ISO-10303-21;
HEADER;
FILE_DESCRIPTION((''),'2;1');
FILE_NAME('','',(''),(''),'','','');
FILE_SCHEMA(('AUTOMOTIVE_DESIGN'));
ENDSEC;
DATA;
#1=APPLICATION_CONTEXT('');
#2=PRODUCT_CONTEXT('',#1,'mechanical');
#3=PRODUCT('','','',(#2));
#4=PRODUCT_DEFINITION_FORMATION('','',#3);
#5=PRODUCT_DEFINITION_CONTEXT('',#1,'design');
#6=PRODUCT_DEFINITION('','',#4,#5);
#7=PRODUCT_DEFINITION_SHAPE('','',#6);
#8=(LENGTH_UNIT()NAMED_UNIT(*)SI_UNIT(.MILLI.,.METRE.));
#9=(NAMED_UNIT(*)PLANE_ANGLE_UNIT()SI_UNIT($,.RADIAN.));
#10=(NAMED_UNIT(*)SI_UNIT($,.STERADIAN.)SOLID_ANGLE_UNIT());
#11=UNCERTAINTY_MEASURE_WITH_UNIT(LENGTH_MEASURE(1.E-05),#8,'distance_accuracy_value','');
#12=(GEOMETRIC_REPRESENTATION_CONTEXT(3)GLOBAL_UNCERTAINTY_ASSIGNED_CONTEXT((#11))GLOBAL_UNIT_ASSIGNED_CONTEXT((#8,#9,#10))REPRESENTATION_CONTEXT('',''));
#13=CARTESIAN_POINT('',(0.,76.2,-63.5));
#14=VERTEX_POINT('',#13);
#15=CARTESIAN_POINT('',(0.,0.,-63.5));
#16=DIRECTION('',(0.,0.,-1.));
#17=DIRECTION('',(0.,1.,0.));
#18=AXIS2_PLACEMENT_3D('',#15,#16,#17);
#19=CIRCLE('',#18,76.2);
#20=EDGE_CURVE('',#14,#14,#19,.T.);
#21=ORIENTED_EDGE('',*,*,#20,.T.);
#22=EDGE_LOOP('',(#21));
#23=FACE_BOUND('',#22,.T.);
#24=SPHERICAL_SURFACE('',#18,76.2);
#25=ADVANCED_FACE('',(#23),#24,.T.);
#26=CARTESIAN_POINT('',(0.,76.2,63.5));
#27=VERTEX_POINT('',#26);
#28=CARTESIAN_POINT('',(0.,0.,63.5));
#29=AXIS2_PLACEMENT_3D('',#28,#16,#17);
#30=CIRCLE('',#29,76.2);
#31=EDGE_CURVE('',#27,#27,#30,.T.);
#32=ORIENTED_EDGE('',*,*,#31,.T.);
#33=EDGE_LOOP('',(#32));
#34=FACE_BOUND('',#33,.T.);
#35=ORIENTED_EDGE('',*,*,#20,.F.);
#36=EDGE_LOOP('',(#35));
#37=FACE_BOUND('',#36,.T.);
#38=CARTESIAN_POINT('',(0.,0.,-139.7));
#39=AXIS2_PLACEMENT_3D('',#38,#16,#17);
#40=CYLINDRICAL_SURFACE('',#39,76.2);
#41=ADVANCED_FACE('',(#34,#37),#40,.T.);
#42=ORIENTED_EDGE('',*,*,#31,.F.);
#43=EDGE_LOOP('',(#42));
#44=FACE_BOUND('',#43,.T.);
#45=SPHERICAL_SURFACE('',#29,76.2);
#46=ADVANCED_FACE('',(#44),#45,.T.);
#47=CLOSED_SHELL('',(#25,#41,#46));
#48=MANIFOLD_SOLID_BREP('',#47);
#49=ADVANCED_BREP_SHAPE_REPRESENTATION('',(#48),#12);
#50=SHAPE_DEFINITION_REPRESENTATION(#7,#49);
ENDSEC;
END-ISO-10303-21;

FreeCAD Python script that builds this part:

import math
import FreeCAD as App
import Part
import Sketcher

V = App.Vector
Q = App.Units.Quantity

doc = App.newDocument("Part")
body = doc.addObject("PartDesign::Body", "Body")

# Sketch on YZ plane
sketch1 = body.newObject("Sketcher::SketchObject", "Sketch")
sketch1.AttachmentSupport = (doc.getObject("YZ_Plane"), [""])
sketch1.MapMode = "FlatFace"
sketch1.addGeometry(Part.LineSegment(V(76, -64, 0), V(76, 64, 0)), False)
sketch1.addGeometry(Part.ArcOfCircle(Part.Circle(V(0, 63, 0), V(0, 0, 1), 76), math.radians(0), math.radians(90)), False)
sketch1.addGeometry(Part.LineSegment(V(0, 140, 0), V(0, -140, 0)), False)
sketch1.addGeometry(Part.ArcOfCircle(Part.Circle(V(0, -63, 0), V(0, 0, 1), 76), math.radians(-90), math.radians(0)), False)
sketch1.addConstraint(Sketcher.Constraint("Tangent", 0, 2, 1, 1))
sketch1.addConstraint(Sketcher.Constraint("Coincident", 1, 2, 2, 1))
sketch1.addConstraint(Sketcher.Constraint("Coincident", 2, 2, 3, 1))
sketch1.addConstraint(Sketcher.Constraint("Tangent", 3, 2, 0, 1))
sketch1.addConstraint(Sketcher.Constraint("Vertical", 0))
sketch1.addConstraint(Sketcher.Constraint("Vertical", 2))
sketch1.addConstraint(Sketcher.Constraint("Equal", 1, 3))
sketch1.addConstraint(Sketcher.Constraint("Symmetric", 1, 3, 3, 3, -1, 1))
sketch1.addConstraint(Sketcher.Constraint("PointOnObject", 1, 2, -2))
sketch1.addConstraint(Sketcher.Constraint("Radius", 1, Q("3 in")))
sketch1.addConstraint(Sketcher.Constraint("DistanceY", 0, 1, 0, 2, Q("5 in")))
revolution = body.newObject("PartDesign::Revolution", "Revolution")
revolution.Profile = sketch1
revolution.ReferenceAxis = (sketch1, ["V_Axis"])
revolution.Angle = 360

doc.recompute()
